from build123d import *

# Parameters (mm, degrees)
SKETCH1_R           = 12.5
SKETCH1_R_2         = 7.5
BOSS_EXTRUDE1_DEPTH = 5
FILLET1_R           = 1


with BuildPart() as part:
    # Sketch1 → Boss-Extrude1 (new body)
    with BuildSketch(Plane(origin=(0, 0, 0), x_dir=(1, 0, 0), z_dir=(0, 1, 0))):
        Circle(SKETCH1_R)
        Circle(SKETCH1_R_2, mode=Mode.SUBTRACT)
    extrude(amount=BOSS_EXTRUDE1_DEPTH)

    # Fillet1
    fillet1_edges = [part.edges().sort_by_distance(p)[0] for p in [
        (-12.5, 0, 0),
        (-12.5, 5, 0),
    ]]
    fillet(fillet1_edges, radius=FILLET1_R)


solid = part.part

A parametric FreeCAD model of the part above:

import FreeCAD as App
import Part
import Sketcher

V = App.Vector


def edges_at(feature, points):
    """Names of the edges that pass closest to the given points."""
    edges = feature.Shape.Edges
    near = lambda p: min(range(len(edges)), key=lambda i: edges[i].distToShape(Part.Vertex(*p))[0])
    return sorted({f"Edge{near(p) + 1}" for p in points})

doc = App.newDocument("Part")
body = doc.addObject("PartDesign::Body", "Body")

# Sketch on XZ plane
sketch1 = body.newObject("Sketcher::SketchObject", "Sketch")
sketch1.AttachmentSupport = (doc.getObject("XZ_Plane"), [""])
sketch1.MapMode = "FlatFace"
sketch1.addGeometry([
    Part.Circle(V(0, 0, 0), V(0, 0, 1), 12.5),
    Part.Circle(V(0, 0, 0), V(0, 0, 1), 7.5),
], False)
sketch1.addConstraint([
    Sketcher.Constraint("Coincident", 0, 3, -1, 1),
    Sketcher.Constraint("Coincident", 1, 3, -1, 1),
    Sketcher.Constraint("Diameter", 0, 25.0),
    Sketcher.Constraint("Diameter", 1, 15.0),
])
pad1 = body.newObject("PartDesign::Pad", "Pad")
pad1.Profile = sketch1
pad1.Length = 5
pad1.Reversed = True
doc.recompute()

fillet = body.newObject("PartDesign::Fillet", "Fillet")
fillet.Base = (pad1, edges_at(pad1, [(-12.5, 0, 0), (-12.5, 5, 0)]))
fillet.Radius = 1

doc.recompute()
